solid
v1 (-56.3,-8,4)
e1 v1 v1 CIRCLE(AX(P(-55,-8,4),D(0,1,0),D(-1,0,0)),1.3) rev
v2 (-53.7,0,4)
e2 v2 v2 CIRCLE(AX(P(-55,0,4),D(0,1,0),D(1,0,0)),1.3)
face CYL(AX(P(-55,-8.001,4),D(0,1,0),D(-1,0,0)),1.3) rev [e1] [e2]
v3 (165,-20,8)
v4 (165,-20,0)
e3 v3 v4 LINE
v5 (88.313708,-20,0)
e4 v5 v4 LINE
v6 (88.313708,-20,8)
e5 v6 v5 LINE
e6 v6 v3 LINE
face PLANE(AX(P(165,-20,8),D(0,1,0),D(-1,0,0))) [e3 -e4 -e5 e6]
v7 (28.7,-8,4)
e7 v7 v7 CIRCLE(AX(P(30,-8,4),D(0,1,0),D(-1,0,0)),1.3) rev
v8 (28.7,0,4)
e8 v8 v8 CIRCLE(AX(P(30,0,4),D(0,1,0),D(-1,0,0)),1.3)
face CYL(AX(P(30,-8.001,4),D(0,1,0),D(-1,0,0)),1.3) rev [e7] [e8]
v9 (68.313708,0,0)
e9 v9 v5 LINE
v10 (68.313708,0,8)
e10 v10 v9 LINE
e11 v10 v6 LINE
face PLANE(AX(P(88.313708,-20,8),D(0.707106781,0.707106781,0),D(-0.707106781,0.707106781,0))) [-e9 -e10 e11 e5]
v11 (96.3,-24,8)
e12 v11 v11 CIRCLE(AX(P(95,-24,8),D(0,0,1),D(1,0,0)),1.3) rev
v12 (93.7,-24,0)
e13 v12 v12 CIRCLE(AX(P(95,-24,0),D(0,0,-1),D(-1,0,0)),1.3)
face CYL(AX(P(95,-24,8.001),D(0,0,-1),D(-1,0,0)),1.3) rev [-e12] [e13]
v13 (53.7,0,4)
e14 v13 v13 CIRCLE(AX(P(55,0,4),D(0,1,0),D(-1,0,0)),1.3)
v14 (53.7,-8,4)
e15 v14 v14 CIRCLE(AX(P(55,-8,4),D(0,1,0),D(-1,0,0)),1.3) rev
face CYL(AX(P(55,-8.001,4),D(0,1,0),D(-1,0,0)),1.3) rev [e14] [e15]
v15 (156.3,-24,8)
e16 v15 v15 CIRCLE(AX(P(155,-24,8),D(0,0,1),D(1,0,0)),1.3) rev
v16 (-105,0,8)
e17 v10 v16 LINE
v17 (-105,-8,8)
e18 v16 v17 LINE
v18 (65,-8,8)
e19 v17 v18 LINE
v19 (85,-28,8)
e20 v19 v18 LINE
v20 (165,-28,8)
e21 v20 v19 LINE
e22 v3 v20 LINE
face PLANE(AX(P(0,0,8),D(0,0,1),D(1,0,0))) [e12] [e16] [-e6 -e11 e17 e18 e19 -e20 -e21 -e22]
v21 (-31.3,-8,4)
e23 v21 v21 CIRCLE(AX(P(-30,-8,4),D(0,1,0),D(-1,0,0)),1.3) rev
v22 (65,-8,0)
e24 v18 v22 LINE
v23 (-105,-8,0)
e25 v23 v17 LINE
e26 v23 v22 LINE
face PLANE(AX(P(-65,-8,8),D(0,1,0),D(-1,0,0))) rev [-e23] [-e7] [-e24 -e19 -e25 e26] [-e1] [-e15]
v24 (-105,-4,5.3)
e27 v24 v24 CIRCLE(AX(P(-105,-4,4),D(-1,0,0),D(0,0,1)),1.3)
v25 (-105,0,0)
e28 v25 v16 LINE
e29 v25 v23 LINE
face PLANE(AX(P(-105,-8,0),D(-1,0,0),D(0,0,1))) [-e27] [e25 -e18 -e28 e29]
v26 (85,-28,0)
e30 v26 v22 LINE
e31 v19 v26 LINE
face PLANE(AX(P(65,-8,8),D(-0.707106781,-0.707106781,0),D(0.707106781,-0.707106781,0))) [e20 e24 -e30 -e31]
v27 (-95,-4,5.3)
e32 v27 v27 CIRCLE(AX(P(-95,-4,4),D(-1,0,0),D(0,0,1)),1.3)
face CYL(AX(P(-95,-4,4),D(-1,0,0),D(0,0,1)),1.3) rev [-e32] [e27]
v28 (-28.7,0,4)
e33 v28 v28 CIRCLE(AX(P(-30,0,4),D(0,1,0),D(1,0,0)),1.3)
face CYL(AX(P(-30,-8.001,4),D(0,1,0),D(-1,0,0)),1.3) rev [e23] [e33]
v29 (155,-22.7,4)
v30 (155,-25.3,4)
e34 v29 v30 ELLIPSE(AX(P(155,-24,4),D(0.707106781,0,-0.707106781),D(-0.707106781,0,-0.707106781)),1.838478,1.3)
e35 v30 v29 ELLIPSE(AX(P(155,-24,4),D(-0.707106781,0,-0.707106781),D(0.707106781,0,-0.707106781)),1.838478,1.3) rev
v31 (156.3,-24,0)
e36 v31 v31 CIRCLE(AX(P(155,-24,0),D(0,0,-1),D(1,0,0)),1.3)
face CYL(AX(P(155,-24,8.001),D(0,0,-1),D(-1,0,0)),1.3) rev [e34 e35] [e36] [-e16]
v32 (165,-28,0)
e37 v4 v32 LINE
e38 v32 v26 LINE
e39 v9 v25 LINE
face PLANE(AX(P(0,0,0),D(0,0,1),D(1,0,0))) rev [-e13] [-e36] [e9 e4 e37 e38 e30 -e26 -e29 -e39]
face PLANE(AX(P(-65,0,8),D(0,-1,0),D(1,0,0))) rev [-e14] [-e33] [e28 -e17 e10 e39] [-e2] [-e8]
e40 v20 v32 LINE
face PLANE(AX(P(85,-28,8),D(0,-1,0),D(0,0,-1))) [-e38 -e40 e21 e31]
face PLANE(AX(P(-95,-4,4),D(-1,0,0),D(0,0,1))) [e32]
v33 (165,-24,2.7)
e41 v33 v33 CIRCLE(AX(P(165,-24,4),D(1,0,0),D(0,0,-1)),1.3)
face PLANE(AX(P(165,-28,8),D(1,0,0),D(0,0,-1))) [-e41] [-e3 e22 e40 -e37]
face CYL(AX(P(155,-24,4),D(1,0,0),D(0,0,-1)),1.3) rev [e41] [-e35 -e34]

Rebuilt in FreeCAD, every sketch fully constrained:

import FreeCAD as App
import Part
import Sketcher
from FreeCAD import Vector
Q = App.Units.Quantity


def add_polygon(sketch, points):
    """Adds a closed chain of lines whose ends are joined by coincident constraints."""
    first, n = sketch.GeometryCount, len(points)
    for a, b in zip(points, points[1:] + points[:1]):
        sketch.addGeometry(Part.LineSegment(App.Vector(*a, 0), App.Vector(*b, 0)), False)
    for i in range(n):
        sketch.addConstraint(Sketcher.Constraint("Coincident", first + i, 2, first + (i + 1) % n, 1))

doc = App.newDocument("Part")
body = doc.addObject("PartDesign::Body", "Body")

# Sketch on XY plane
sketch1 = body.newObject("Sketcher::SketchObject", "Sketch")
sketch1.AttachmentSupport = (doc.getObject("XY_Plane"), [""])
sketch1.MapMode = "FlatFace"
add_polygon(sketch1, [(-65, -8), (65, -8), (65, 0), (-65, 0)])  # lines 0-3
sketch1.addConstraint(Sketcher.Constraint("Horizontal", 0))
sketch1.addConstraint(Sketcher.Constraint("Vertical", 1))
sketch1.addConstraint(Sketcher.Constraint("Horizontal", 2))
sketch1.addConstraint(Sketcher.Constraint("Vertical", 3))
sketch1.addConstraint(Sketcher.Constraint("Symmetric", 1, 2, 2, 2, -1, 1))
sketch1.addConstraint(Sketcher.Constraint("DistanceX", 0, 1, 0, 2, Q("130 mm")))
sketch1.addConstraint(Sketcher.Constraint("DistanceY", 1, 1, 1, 2, Q("8 mm")))
pad1 = body.newObject("PartDesign::Pad", "Pad")
pad1.Profile = sketch1
pad1.Length = 8

# Sketch on XZ plane
sketch2 = body.newObject("Sketcher::SketchObject", "Sketch001")
sketch2.AttachmentSupport = (doc.getObject("XZ_Plane"), [""])
sketch2.MapMode = "FlatFace"
sketch2.addGeometry(Part.Circle(Vector(55, 4, 0), Vector(0, 0, 1), 1.3), False)
sketch2.addConstraint(Sketcher.Constraint("Diameter", 0, Q("2.6 mm")))
sketch2.addConstraint(Sketcher.Constraint("DistanceX", -1, 1, 0, 3, Q("55 mm")))
sketch2.addConstraint(Sketcher.Constraint("DistanceY", -1, 1, 0, 3, Q("4 mm")))
pocket1 = body.newObject("PartDesign::Pocket", "Pocket")
pocket1.Profile = sketch2
pocket1.Type = "UpToFirst"
pocket1.Reversed = True

# Sketch on XZ plane
sketch3 = body.newObject("Sketcher::SketchObject", "Sketch002")
sketch3.AttachmentSupport = (doc.getObject("XZ_Plane"), [""])
sketch3.MapMode = "FlatFace"
sketch3.addGeometry(Part.Circle(Vector(30, 4, 0), Vector(0, 0, 1), 1.3), False)
sketch3.addConstraint(Sketcher.Constraint("Diameter", 0, Q("2.6 mm")))
sketch3.addConstraint(Sketcher.Constraint("DistanceX", -1, 1, 0, 3, Q("30 mm")))
sketch3.addConstraint(Sketcher.Constraint("DistanceY", -1, 1, 0, 3, Q("4 mm")))
pocket2 = body.newObject("PartDesign::Pocket", "Pocket001")
pocket2.Profile = sketch3
pocket2.Type = "UpToFirst"
pocket2.Reversed = True

# Sketch on XZ plane
sketch4 = body.newObject("Sketcher::SketchObject", "Sketch003")
sketch4.AttachmentSupport = (doc.getObject("XZ_Plane"), [""])
sketch4.MapMode = "FlatFace"
sketch4.addGeometry(Part.Circle(Vector(-30, 4, 0), Vector(0, 0, 1), 1.3), False)
sketch4.addConstraint(Sketcher.Constraint("Diameter", 0, Q("2.6 mm")))
sketch4.addConstraint(Sketcher.Constraint("DistanceX", 0, 3, -1, 1, Q("30 mm")))
sketch4.addConstraint(Sketcher.Constraint("DistanceY", -1, 1, 0, 3, Q("4 mm")))
pocket3 = body.newObject("PartDesign::Pocket", "Pocket002")
pocket3.Profile = sketch4
pocket3.Type = "UpToFirst"
pocket3.Reversed = True

# Sketch on XZ plane
sketch5 = body.newObject("Sketcher::SketchObject", "Sketch004")
sketch5.AttachmentSupport = (doc.getObject("XZ_Plane"), [""])
sketch5.MapMode = "FlatFace"
sketch5.addGeometry(Part.Circle(Vector(-55, 4, 0), Vector(0, 0, 1), 1.3), False)
sketch5.addConstraint(Sketcher.Constraint("Diameter", 0, Q("2.6 mm")))
sketch5.addConstraint(Sketcher.Constraint("DistanceX", 0, 3, -1, 1, Q("55 mm")))
sketch5.addConstraint(Sketcher.Constraint("DistanceY", -1, 1, 0, 3, Q("4 mm")))
pocket4 = body.newObject("PartDesign::Pocket", "Pocket003")
pocket4.Profile = sketch5
pocket4.Type = "UpToFirst"
pocket4.Reversed = True

# Sketch on XY plane
sketch6 = body.newObject("Sketcher::SketchObject", "Sketch005")
sketch6.AttachmentSupport = (doc.getObject("XY_Plane"), [""])
sketch6.MapMode = "FlatFace"
add_polygon(sketch6, [(85, -28), (65, -8), (65, 0), (68.3, 0), (88.3, -20), (165, -20), (165, -28)])  # lines 0-6
sketch6.addConstraint(Sketcher.Constraint("Vertical", 1))
sketch6.addConstraint(Sketcher.Constraint("Horizontal", 2))
sketch6.addConstraint(Sketcher.Constraint("Horizontal", 4))
sketch6.addConstraint(Sketcher.Constraint("Vertical", 5))
sketch6.addConstraint(Sketcher.Constraint("Horizontal", 6))
sketch6.addConstraint(Sketcher.Constraint("PointOnObject", 1, 2, -1))
sketch6.addConstraint(Sketcher.Constraint("Parallel", 0, 3))
sketch6.addConstraint(Sketcher.Constraint("Equal", 1, 5))
sketch6.addConstraint(Sketcher.Constraint("DistanceX", 6, 2, 6, 1, Q("80 mm")))
sketch6.addConstraint(Sketcher.Constraint("DistanceY", 1, 1, 1, 2, Q("8 mm")))
sketch6.addConstraint(Sketcher.Constraint("Angle", 0, Q("135 deg")))
sketch6.addConstraint(Sketcher.Constraint("DistanceX", -1, 1, 0, 2, Q("65 mm")))
sketch6.addConstraint(Sketcher.Constraint("DistanceY", 3, 2, -1, 1, Q("20 mm")))
sketch6.addConstraint(Sketcher.Constraint("DistanceX", 2, 1, 2, 2, Q("3.313708 mm")))
pad2 = body.newObject("PartDesign::Pad", "Pad001")
pad2.Profile = sketch6
pad2.Length = 8

# Sketch on YZ plane
sketch7 = body.newObject("Sketcher::SketchObject", "Sketch006")
sketch7.AttachmentSupport = (doc.getObject("YZ_Plane"), [""])
sketch7.MapMode = "FlatFace"
sketch7.AttachmentOffset = App.Placement(Vector(0, 0, 165), App.Rotation())
sketch7.addGeometry(Part.Circle(Vector(-24, 4, 0), Vector(0, 0, 1), 1.3), False)
sketch7.addConstraint(Sketcher.Constraint("Diameter", 0, Q("2.6 mm")))
sketch7.addConstraint(Sketcher.Constraint("DistanceX", 0, 3, -1, 1, Q("24 mm")))
sketch7.addConstraint(Sketcher.Constraint("DistanceY", -1, 1, 0, 3, Q("4 mm")))
pocket5 = body.newObject("PartDesign::Pocket", "Pocket004")
pocket5.Profile = sketch7
pocket5.Length = 10

# Sketch on XY plane
sketch8 = body.newObject("Sketcher::SketchObject", "Sketch007")
sketch8.AttachmentSupport = (doc.getObject("XY_Plane"), [""])
sketch8.MapMode = "FlatFace"
sketch8.addGeometry(Part.Circle(Vector(95, -24, 0), Vector(0, 0, 1), 1.3), False)
sketch8.addConstraint(Sketcher.Constraint("Diameter", 0, Q("2.6 mm")))
sketch8.addConstraint(Sketcher.Constraint("DistanceX", -1, 1, 0, 3, Q("95 mm")))
sketch8.addConstraint(Sketcher.Constraint("DistanceY", 0, 3, -1, 1, Q("24 mm")))
pocket6 = body.newObject("PartDesign::Pocket", "Pocket005")
pocket6.Profile = sketch8
pocket6.Type = "UpToFirst"
pocket6.Reversed = True

# Sketch on XY plane
sketch9 = body.newObject("Sketcher::SketchObject", "Sketch008")
sketch9.AttachmentSupport = (doc.getObject("XY_Plane"), [""])
sketch9.MapMode = "FlatFace"
sketch9.addGeometry(Part.Circle(Vector(155, -24, 0), Vector(0, 0, 1), 1.3), False)
sketch9.addConstraint(Sketcher.Constraint("Diameter", 0, Q("2.6 mm")))
sketch9.addConstraint(Sketcher.Constraint("DistanceX", -1, 1, 0, 3, Q("155 mm")))
sketch9.addConstraint(Sketcher.Constraint("DistanceY", 0, 3, -1, 1, Q("24 mm")))
pocket7 = body.newObject("PartDesign::Pocket", "Pocket006")
pocket7.Profile = sketch9
pocket7.Length = 8
pocket7.Reversed = True

# Sketch on XY plane
sketch10 = body.newObject("Sketcher::SketchObject", "Sketch009")
sketch10.AttachmentSupport = (doc.getObject("XY_Plane"), [""])
sketch10.MapMode = "FlatFace"
sketch10.AttachmentOffset = App.Placement(Vector(0, 0, 8), App.Rotation())
add_polygon(sketch10, [(-105, 0), (-105, -8), (-65, -8), (-65, 0)])  # lines 0-3
sketch10.addConstraint(Sketcher.Constraint("Vertical", 0))
sketch10.addConstraint(Sketcher.Constraint("Horizontal", 1))
sketch10.addConstraint(Sketcher.Constraint("Vertical", 2))
sketch10.addConstraint(Sketcher.Constraint("Horizontal", 3))
sketch10.addConstraint(Sketcher.Constraint("PointOnObject", 2, 2, -1))
sketch10.addConstraint(Sketcher.Constraint("DistanceX", 1, 1, 1, 2, Q("40 mm")))
sketch10.addConstraint(Sketcher.Constraint("DistanceY", 0, 2, 0, 1, Q("8 mm")))
sketch10.addConstraint(Sketcher.Constraint("DistanceX", 0, 2, -1, 1, Q("105 mm")))
pad3 = body.newObject("PartDesign::Pad", "Pad002")
pad3.Profile = sketch10
pad3.Length = 8
pad3.Reversed = True

# Sketch on YZ plane
sketch11 = body.newObject("Sketcher::SketchObject", "Sketch010")
sketch11.AttachmentSupport = (doc.getObject("YZ_Plane"), [""])
sketch11.MapMode = "FlatFace"
sketch11.AttachmentOffset = App.Placement(Vector(0, 0, -105), App.Rotation())
sketch11.addGeometry(Part.Circle(Vector(-4, 4, 0), Vector(0, 0, 1), 1.3), False)
sketch11.addConstraint(Sketcher.Constraint("Diameter", 0, Q("2.6 mm")))
sketch11.addConstraint(Sketcher.Constraint("DistanceX", 0, 3, -1, 1, Q("4 mm")))
sketch11.addConstraint(Sketcher.Constraint("DistanceY", -1, 1, 0, 3, Q("4 mm")))
pocket8 = body.newObject("PartDesign::Pocket", "Pocket007")
pocket8.Profile = sketch11
pocket8.Length = 10
pocket8.Reversed = True

doc.recompute()
